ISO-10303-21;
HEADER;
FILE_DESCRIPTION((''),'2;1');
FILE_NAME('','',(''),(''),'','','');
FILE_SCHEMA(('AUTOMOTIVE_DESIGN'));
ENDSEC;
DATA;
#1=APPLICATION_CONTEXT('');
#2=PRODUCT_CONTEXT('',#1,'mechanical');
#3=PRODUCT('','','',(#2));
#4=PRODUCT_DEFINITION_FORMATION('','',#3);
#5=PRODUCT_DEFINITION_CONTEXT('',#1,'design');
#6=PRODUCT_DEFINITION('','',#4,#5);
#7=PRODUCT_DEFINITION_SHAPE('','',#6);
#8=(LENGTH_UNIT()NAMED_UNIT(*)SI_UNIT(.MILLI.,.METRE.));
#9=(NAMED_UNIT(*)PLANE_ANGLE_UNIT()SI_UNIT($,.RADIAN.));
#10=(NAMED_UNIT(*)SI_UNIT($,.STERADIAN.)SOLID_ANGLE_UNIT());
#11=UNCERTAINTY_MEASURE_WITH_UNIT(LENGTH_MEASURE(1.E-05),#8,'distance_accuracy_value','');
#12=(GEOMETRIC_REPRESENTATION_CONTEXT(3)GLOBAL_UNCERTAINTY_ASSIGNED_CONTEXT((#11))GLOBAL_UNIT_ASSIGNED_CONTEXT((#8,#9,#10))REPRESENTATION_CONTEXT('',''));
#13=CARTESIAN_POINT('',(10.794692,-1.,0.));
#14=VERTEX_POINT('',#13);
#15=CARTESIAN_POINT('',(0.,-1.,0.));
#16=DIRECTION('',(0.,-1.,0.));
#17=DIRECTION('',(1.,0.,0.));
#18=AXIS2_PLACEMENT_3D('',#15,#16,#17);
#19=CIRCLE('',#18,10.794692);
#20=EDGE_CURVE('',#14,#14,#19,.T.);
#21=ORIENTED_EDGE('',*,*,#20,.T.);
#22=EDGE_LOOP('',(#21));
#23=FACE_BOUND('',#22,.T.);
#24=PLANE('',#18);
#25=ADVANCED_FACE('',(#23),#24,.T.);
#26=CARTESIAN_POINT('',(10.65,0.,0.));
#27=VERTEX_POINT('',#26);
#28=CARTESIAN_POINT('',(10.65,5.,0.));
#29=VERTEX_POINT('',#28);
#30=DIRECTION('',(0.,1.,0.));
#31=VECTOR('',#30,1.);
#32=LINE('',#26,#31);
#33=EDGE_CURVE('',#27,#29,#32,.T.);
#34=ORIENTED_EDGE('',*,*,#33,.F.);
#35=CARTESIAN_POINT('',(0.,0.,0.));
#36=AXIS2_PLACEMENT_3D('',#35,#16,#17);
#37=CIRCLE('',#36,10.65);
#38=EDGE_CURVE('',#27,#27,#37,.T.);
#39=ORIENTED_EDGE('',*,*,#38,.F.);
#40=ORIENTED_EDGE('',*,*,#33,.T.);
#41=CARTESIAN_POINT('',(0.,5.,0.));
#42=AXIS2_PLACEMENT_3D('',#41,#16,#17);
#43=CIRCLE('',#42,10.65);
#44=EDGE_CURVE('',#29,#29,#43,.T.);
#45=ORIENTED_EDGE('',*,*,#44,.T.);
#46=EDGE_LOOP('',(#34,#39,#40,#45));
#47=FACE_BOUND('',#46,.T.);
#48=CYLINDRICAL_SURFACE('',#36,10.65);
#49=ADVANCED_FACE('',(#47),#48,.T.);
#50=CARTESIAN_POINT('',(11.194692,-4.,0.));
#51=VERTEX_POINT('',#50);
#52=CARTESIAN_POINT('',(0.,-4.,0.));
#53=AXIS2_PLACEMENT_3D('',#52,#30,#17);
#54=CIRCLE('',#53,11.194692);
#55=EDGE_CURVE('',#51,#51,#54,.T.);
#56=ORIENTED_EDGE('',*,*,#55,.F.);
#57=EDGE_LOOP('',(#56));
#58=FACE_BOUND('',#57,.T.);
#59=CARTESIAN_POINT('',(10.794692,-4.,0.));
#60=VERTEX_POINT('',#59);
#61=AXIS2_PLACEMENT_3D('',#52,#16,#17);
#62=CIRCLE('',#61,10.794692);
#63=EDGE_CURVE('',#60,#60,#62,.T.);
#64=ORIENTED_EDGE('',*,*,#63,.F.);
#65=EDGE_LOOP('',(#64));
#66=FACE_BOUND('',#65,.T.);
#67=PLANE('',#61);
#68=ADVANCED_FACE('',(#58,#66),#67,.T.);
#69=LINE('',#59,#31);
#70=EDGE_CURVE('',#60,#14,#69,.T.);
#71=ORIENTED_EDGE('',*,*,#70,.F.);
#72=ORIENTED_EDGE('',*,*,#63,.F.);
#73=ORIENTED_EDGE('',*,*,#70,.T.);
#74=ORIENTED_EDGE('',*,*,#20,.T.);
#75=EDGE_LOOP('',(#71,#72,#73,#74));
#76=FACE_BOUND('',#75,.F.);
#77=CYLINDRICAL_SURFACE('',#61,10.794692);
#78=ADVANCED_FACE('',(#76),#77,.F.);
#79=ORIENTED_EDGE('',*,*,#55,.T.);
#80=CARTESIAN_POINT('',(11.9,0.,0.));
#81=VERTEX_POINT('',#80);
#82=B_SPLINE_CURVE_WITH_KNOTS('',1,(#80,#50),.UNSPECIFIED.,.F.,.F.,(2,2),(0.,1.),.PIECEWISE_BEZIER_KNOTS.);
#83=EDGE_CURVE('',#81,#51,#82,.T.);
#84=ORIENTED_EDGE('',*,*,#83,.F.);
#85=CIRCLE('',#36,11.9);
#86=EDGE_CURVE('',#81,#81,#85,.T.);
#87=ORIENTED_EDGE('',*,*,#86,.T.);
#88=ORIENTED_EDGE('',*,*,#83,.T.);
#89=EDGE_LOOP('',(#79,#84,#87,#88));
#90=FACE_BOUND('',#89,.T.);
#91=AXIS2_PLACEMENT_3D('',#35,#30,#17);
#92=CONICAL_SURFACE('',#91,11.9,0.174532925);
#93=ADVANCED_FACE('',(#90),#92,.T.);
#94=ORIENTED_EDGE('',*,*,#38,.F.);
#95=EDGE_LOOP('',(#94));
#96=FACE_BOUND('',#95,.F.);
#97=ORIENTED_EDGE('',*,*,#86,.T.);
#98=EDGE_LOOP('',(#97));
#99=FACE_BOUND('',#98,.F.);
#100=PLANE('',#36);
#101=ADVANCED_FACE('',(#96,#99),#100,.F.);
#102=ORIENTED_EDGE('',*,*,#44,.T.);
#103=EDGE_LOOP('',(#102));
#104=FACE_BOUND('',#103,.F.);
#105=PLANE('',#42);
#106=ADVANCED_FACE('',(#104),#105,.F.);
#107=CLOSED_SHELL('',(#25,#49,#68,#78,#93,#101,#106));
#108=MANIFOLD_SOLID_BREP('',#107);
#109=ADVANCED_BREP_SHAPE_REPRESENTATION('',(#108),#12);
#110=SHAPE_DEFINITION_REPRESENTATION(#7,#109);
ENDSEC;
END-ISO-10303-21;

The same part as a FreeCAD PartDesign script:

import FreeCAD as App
import Part
import Sketcher

V = App.Vector

doc = App.newDocument("Part")
body = doc.addObject("PartDesign::Body", "Body")

# Sketch on XZ plane
sketch1 = doc.addObject("Sketcher::SketchObject", "Sketch")
body.addObject(sketch1)
sketch1.AttachmentSupport = (doc.XZ_Plane, [""])
sketch1.MapMode = "FlatFace"
sketch1.addGeometry(Part.Circle(V(0, 0, 0), V(0, 0, 1), 11), False)
sketch1.addConstraint([
    Sketcher.Constraint("Coincident", 0, 3, -1, 1),
    Sketcher.Constraint("Diameter", 0, 21.3),
])
pad1 = doc.addObject("PartDesign::Pad", "Pad")
body.addObject(pad1)
pad1.Profile = sketch1
pad1.Length = 5
pad1.Reversed = True

# Sketch on XZ plane
sketch2 = doc.addObject("Sketcher::SketchObject", "Sketch001")
body.addObject(sketch2)
sketch2.AttachmentSupport = (doc.XZ_Plane, [""])
sketch2.MapMode = "FlatFace"
sketch2.addGeometry(Part.Circle(V(0, 0, 0), V(0, 0, 1), 12), False)
sketch2.addConstraint([
    Sketcher.Constraint("Coincident", 0, 3, -1, 1),
    Sketcher.Constraint("Diameter", 0, 23.8),
])
pad2 = doc.addObject("PartDesign::Pad", "Pad001")
body.addObject(pad2)
pad2.Profile = sketch2
pad2.Length = 4
pad2.TaperAngle = -10

# Sketch on XZ plane
sketch3 = doc.addObject("Sketcher::SketchObject", "Sketch002")
body.addObject(sketch3)
sketch3.AttachmentSupport = (doc.XZ_Plane, [""])
sketch3.MapMode = "FlatFace"
sketch3.AttachmentOffset = App.Placement(V(0, 0, 4), App.Rotation())
sketch3.addGeometry(Part.Circle(V(0, 0, 0), V(0, 0, 1), 11), False)
sketch3.addConstraint([
    Sketcher.Constraint("Coincident", 0, 3, -1, 1),
    Sketcher.Constraint("Diameter", 0, 21.589384),
])
pocket1 = doc.addObject("PartDesign::Pocket", "Pocket")
body.addObject(pocket1)
pocket1.Profile = sketch3
pocket1.Length = 3

doc.recompute()
